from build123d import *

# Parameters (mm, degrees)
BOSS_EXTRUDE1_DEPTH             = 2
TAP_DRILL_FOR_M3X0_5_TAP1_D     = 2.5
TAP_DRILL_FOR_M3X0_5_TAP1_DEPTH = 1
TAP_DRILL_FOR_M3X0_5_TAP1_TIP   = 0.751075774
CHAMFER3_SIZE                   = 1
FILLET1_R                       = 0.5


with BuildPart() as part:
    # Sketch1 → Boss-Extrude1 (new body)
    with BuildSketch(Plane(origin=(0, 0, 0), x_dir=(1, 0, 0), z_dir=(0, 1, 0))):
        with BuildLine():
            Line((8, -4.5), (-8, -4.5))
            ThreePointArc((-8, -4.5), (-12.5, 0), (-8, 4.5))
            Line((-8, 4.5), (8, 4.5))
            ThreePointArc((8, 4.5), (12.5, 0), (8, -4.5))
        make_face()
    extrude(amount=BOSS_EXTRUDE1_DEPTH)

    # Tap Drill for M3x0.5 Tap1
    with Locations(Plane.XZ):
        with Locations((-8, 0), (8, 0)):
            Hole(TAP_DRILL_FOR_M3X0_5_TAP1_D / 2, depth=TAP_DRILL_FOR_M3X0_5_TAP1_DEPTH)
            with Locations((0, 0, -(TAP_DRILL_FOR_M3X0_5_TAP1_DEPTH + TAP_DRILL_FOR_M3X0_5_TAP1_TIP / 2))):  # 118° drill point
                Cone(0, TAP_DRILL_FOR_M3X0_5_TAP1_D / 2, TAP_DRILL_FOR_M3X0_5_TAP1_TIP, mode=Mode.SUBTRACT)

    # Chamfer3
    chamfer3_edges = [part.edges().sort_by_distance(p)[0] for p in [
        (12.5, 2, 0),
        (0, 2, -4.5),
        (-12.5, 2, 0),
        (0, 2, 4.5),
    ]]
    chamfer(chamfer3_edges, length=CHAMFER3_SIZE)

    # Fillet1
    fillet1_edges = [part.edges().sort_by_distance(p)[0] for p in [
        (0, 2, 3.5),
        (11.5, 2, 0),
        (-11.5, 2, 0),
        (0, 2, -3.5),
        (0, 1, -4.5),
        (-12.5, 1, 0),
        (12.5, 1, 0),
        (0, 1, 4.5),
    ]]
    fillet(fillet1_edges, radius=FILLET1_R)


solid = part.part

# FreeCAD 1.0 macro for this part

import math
import FreeCAD as App
import Part
import Sketcher

V = App.Vector
Q = App.Units.Quantity


def edges_at(feature, points):
    """Names of the edges that pass closest to the given points."""
    edges = feature.Shape.Edges
    near = lambda p: min(range(len(edges)), key=lambda i: edges[i].distToShape(Part.Vertex(*p))[0])
    return sorted({f"Edge{near(p) + 1}" for p in points})

doc = App.newDocument("Part")
params = doc.addObject("Spreadsheet::Sheet", "Params")
for row, (alias, value) in enumerate([
    ("sketch1_radius", "4.5 mm"),
    ("sketch1_width", "16 mm"),
    ("pad1_length", "2 mm"),
    ("sketch2_diameter", "2.5 mm"),
    ("hole_diameter", "2.5 mm"),
    ("hole_depth", "1 mm"),
    ("chamfer_size", "1 mm"),
    ("fillet_radius", "0.5 mm"),
], start=1):
    params.set(f"A{row}", alias)
    params.set(f"B{row}", "=" + value)
    params.setAlias(f"B{row}", alias)

body = doc.addObject("PartDesign::Body", "Body")

sketch1 = body.newObject("Sketcher::SketchObject", "Sketch")
sketch1.AttachmentSupport = (doc.getObject("XZ_Plane"), [""])
sketch1.MapMode = "FlatFace"
sketch1.addGeometry([
    Part.LineSegment(V(-8, 4.5, 0), V(8, 4.5, 0)),
    Part.ArcOfCircle(Part.Circle(V(8, 0, 0), V(0, 0, 1), 4.5), math.radians(-90), math.radians(90)),
    Part.LineSegment(V(8, -4.5, 0), V(-8, -4.5, 0)),
    Part.ArcOfCircle(Part.Circle(V(-8, 0, 0), V(0, 0, 1), 4.5), math.radians(90), math.radians(270)),
], False)
sketch1.addConstraint([
    Sketcher.Constraint("Tangent", 0, 2, 1, 2),
    Sketcher.Constraint("Tangent", 1, 1, 2, 1),
    Sketcher.Constraint("Tangent", 2, 2, 3, 2),
    Sketcher.Constraint("Tangent", 3, 1, 0, 1),
    Sketcher.Constraint("Horizontal", 0),
    Sketcher.Constraint("Horizontal", 2),
    Sketcher.Constraint("Symmetric", 1, 3, 3, 3, -1, 1),
    Sketcher.Constraint("Radius", 1, Q("4.5 mm")),
    Sketcher.Constraint("DistanceX", 0, 1, 0, 2, Q("16 mm")),
])
sketch1.setExpression("Constraints[7]", "Params.sketch1_radius")
sketch1.setExpression("Constraints[8]", "Params.sketch1_width")
pad1 = body.newObject("PartDesign::Pad", "Pad")
pad1.Profile = sketch1
pad1.setExpression("Length", "Params.pad1_length")
pad1.Reversed = True

sketch2 = body.newObject("Sketcher::SketchObject", "Sketch001")
sketch2.AttachmentSupport = (doc.getObject("XZ_Plane"), [""])
sketch2.MapMode = "FlatFace"
sketch2.addGeometry([
    Part.Circle(V(-8, 0, 0), V(0, 0, 1), 1.2),
    Part.Circle(V(8, 0, 0), V(0, 0, 1), 1.2),
], False)
sketch2.addConstraint([
    Sketcher.Constraint("Equal", 0, 1),
    Sketcher.Constraint("Symmetric", 0, 3, 1, 3, -1, 1),
    Sketcher.Constraint("PointOnObject", 0, 3, -1),
    Sketcher.Constraint("Diameter", 0, Q("2.5 mm")),
    Sketcher.Constraint("DistanceX", 0, 3, -1, 1, Q("8 mm")),
])
sketch2.setExpression("Constraints[3]", "Params.sketch2_diameter")
doc.recompute()
hole = body.newObject("PartDesign::Hole", "Hole")
hole.Profile = sketch2
hole.ThreadType = "None"
hole.setExpression("Diameter", "Params.hole_diameter")
hole.DepthType = "Dimension"
hole.setExpression("Depth", "Params.hole_depth")
hole.DrillPoint = "Angled"
hole.DrillPointAngle = 118
doc.recompute()

chamfer = body.newObject("PartDesign::Chamfer", "Chamfer")
chamfer.Base = (hole, edges_at(hole, [
    (12.5, 2, 0),
    (0, 2, -4.5),
    (-12.5, 2, 0),
    (0, 2, 4.5),
]))
chamfer.setExpression("Size", "Params.chamfer_size")
doc.recompute()

fillet = body.newObject("PartDesign::Fillet", "Fillet")
fillet.Base = (chamfer, edges_at(chamfer, [
    (0, 2, 3.5),
    (11.5, 2, 0),
    (-11.5, 2, 0),
    (0, 2, -3.5),
    (0, 1, -4.5),
    (-12.5, 1, 0),
    (12.5, 1, 0),
    (0, 1, 4.5),
]))
fillet.setExpression("Radius", "Params.fillet_radius")

doc.recompute()
